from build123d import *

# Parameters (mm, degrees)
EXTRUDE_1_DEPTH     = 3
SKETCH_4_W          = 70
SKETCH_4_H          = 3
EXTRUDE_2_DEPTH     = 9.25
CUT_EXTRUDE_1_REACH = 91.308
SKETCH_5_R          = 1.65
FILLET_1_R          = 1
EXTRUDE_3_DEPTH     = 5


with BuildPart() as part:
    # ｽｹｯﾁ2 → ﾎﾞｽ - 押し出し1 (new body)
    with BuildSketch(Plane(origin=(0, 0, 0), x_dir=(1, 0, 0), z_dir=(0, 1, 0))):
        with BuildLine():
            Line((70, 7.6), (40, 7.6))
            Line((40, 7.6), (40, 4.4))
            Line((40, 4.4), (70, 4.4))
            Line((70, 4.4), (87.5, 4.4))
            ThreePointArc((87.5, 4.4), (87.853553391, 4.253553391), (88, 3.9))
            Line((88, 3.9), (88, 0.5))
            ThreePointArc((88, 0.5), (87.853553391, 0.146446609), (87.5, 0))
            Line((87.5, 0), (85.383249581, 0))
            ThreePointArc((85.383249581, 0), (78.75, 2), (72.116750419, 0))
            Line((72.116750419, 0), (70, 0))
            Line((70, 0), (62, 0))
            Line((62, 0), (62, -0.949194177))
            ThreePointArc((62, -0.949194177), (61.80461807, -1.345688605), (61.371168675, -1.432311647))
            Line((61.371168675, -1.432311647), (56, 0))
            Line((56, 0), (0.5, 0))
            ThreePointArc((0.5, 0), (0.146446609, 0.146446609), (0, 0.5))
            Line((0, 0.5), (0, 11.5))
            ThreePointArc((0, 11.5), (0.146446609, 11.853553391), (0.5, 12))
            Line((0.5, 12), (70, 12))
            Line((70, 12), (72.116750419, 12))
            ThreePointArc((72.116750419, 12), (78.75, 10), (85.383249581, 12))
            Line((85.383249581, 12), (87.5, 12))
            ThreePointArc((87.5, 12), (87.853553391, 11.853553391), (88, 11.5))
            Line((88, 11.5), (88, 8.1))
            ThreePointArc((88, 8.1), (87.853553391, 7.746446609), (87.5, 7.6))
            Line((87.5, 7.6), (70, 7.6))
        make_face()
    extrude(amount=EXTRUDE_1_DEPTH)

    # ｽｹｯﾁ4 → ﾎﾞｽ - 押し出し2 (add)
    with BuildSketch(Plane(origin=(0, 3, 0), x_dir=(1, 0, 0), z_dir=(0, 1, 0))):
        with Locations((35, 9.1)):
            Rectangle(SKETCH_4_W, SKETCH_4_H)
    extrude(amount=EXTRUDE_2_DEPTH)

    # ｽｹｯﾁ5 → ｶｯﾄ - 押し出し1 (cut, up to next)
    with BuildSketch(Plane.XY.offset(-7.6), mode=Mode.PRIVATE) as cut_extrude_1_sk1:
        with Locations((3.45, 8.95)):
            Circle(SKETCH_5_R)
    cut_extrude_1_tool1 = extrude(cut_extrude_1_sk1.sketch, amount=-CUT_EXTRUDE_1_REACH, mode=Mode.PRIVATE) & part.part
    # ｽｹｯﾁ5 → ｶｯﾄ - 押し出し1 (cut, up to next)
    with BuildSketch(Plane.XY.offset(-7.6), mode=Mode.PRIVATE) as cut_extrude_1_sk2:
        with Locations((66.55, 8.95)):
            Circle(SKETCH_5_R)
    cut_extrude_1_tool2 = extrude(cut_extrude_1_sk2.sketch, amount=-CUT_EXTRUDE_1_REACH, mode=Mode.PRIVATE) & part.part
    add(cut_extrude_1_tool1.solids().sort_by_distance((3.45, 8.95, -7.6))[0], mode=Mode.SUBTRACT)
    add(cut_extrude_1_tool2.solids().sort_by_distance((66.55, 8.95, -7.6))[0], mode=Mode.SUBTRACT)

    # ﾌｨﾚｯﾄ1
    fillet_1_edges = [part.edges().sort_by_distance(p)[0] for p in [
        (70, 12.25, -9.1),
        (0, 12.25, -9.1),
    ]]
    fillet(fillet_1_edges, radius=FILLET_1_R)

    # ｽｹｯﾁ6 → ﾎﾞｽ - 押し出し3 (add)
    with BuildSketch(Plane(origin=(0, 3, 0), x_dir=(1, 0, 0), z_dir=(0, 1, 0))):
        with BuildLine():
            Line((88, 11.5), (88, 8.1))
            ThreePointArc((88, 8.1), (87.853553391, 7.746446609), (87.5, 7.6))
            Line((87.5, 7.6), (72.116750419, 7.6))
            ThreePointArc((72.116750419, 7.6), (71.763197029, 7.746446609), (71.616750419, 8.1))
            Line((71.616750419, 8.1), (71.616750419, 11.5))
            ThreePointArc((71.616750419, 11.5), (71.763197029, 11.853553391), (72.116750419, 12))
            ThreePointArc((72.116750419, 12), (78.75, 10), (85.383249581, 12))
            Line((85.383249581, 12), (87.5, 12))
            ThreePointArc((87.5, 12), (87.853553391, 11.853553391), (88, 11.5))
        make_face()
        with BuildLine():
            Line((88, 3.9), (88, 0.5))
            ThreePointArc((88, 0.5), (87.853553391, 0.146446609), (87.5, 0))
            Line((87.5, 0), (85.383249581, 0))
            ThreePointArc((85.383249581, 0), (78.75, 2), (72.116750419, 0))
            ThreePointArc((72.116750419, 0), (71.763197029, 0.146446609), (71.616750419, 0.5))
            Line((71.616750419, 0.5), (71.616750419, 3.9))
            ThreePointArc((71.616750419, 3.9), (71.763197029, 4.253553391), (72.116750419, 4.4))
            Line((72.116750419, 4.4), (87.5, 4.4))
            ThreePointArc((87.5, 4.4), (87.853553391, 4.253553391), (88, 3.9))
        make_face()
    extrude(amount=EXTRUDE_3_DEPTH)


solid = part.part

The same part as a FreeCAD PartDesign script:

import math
import FreeCAD as App
import Part
import Sketcher

V = App.Vector


def edges_at(feature, points):
    """Names of the edges that pass closest to the given points."""
    edges = feature.Shape.Edges
    near = lambda p: min(range(len(edges)), key=lambda i: edges[i].distToShape(Part.Vertex(*p))[0])
    return sorted({f"Edge{near(p) + 1}" for p in points})

doc = App.newDocument("Part")
body = doc.addObject("PartDesign::Body", "Body")

sketch1 = doc.addObject("Sketcher::SketchObject", "Sketch")
body.addObject(sketch1)
sketch1.AttachmentSupport = (doc.XZ_Plane, [""])
sketch1.MapMode = "FlatFace"
sketch1.addGeometry(Part.LineSegment(V(40, -4.4, 0), V(40, -7.6, 0)), False)
sketch1.addGeometry(Part.LineSegment(V(40, -7.6, 0), V(87.5, -7.6, 0)), False)
sketch1.addGeometry(Part.ArcOfCircle(Part.Circle(V(87.5, -8.1, 0), V(0, 0, 1), 0.5), math.radians(0), math.radians(90)), False)
sketch1.addGeometry(Part.LineSegment(V(88, -8.1, 0), V(88, -11.5, 0)), False)
sketch1.addGeometry(Part.ArcOfCircle(Part.Circle(V(87.5, -11.5, 0), V(0, 0, 1), 0.5), math.radians(-90), math.radians(0)), False)
sketch1.addGeometry(Part.LineSegment(V(87.5, -12, 0), V(85.38, -12, 0)), False)
sketch1.addGeometry(Part.ArcOfCircle(Part.Circle(V(78.75, -22, 0), V(0, 0, 1), 12), math.radians(56), math.radians(124)), False)
sketch1.addGeometry(Part.LineSegment(V(72.12, -12, 0), V(0.5, -12, 0)), False)
sketch1.addGeometry(Part.ArcOfCircle(Part.Circle(V(0.5, -11.5, 0), V(0, 0, 1), 0.5), math.radians(180), math.radians(270)), False)
sketch1.addGeometry(Part.LineSegment(V(0, -11.5, 0), V(0, -0.5, 0)), False)
sketch1.addGeometry(Part.ArcOfCircle(Part.Circle(V(0.5, -0.5, 0), V(0, 0, 1), 0.5), math.radians(90), math.radians(180)), False)
sketch1.addGeometry(Part.LineSegment(V(0.5, 0, 0), V(56, 0, 0)), False)
sketch1.addGeometry(Part.LineSegment(V(56, 0, 0), V(61.37, 1.43, 0)), False)
sketch1.addGeometry(Part.ArcOfCircle(Part.Circle(V(61.5, 0.95, 0), V(0, 0, 1), 0.5), math.radians(0), math.radians(105)), False)
sketch1.addGeometry(Part.LineSegment(V(62, 0.95, 0), V(62, 0, 0)), False)
sketch1.addGeometry(Part.LineSegment(V(62, 0, 0), V(72.12, 0, 0)), False)
sketch1.addGeometry(Part.ArcOfCircle(Part.Circle(V(78.75, 10, 0), V(0, 0, 1), 12), math.radians(-124), math.radians(-56)), False)
sketch1.addGeometry(Part.LineSegment(V(85.38, 0, 0), V(87.5, 0, 0)), False)
sketch1.addGeometry(Part.ArcOfCircle(Part.Circle(V(87.5, -0.5, 0), V(0, 0, 1), 0.5), math.radians(0), math.radians(90)), False)
sketch1.addGeometry(Part.LineSegment(V(88, -0.5, 0), V(88, -3.9, 0)), False)
sketch1.addGeometry(Part.ArcOfCircle(Part.Circle(V(87.5, -3.9, 0), V(0, 0, 1), 0.5), math.radians(-90), math.radians(0)), False)
sketch1.addGeometry(Part.LineSegment(V(87.5, -4.4, 0), V(40, -4.4, 0)), False)
sketch1.addConstraint(Sketcher.Constraint("Coincident", 0, 2, 1, 1))
sketch1.addConstraint(Sketcher.Constraint("Tangent", 1, 2, 2, 2))
sketch1.addConstraint(Sketcher.Constraint("Tangent", 2, 1, 3, 1))
sketch1.addConstraint(Sketcher.Constraint("Tangent", 3, 2, 4, 2))
sketch1.addConstraint(Sketcher.Constraint("Tangent", 4, 1, 5, 1))
sketch1.addConstraint(Sketcher.Constraint("Coincident", 5, 2, 6, 1))
sketch1.addConstraint(Sketcher.Constraint("Coincident", 6, 2, 7, 1))
sketch1.addConstraint(Sketcher.Constraint("Tangent", 7, 2, 8, 2))
sketch1.addConstraint(Sketcher.Constraint("Tangent", 8, 1, 9, 1))
sketch1.addConstraint(Sketcher.Constraint("Tangent", 9, 2, 10, 2))
sketch1.addConstraint(Sketcher.Constraint("Tangent", 10, 1, 11, 1))
sketch1.addConstraint(Sketcher.Constraint("Coincident", 11, 2, 12, 1))
sketch1.addConstraint(Sketcher.Constraint("Tangent", 12, 2, 13, 2))
sketch1.addConstraint(Sketcher.Constraint("Tangent", 13, 1, 14, 1))
sketch1.addConstraint(Sketcher.Constraint("Coincident", 14, 2, 15, 1))
sketch1.addConstraint(Sketcher.Constraint("Coincident", 15, 2, 16, 1))
sketch1.addConstraint(Sketcher.Constraint("Coincident", 16, 2, 17, 1))
sketch1.addConstraint(Sketcher.Constraint("Tangent", 17, 2, 18, 2))
sketch1.addConstraint(Sketcher.Constraint("Tangent", 18, 1, 19, 1))
sketch1.addConstraint(Sketcher.Constraint("Tangent", 19, 2, 20, 2))
sketch1.addConstraint(Sketcher.Constraint("Tangent", 20, 1, 21, 1))
sketch1.addConstraint(Sketcher.Constraint("Coincident", 21, 2, 0, 1))
sketch1.addConstraint(Sketcher.Constraint("Vertical", 0))
sketch1.addConstraint(Sketcher.Constraint("Horizontal", 1))
sketch1.addConstraint(Sketcher.Constraint("Vertical", 3))
sketch1.addConstraint(Sketcher.Constraint("Horizontal", 5))
sketch1.addConstraint(Sketcher.Constraint("Horizontal", 7))
sketch1.addConstraint(Sketcher.Constraint("Vertical", 9))
sketch1.addConstraint(Sketcher.Constraint("Horizontal", 11))
sketch1.addConstraint(Sketcher.Constraint("Vertical", 14))
sketch1.addConstraint(Sketcher.Constraint("Horizontal", 15))
sketch1.addConstraint(Sketcher.Constraint("Horizontal", 17))
sketch1.addConstraint(Sketcher.Constraint("Vertical", 19))
sketch1.addConstraint(Sketcher.Constraint("Horizontal", 21))
sketch1.addConstraint(Sketcher.Constraint("Equal", 2, 4))
sketch1.addConstraint(Sketcher.Constraint("Equal", 4, 8))
sketch1.addConstraint(Sketcher.Constraint("Equal", 8, 10))
sketch1.addConstraint(Sketcher.Constraint("Equal", 10, 13))
sketch1.addConstraint(Sketcher.Constraint("Equal", 6, 16))
sketch1.addConstraint(Sketcher.Constraint("Equal", 13, 18))
sketch1.addConstraint(Sketcher.Constraint("Equal", 18, 20))
sketch1.addConstraint(Sketcher.Constraint("PointOnObject", 8, 1, -2))
sketch1.addConstraint(Sketcher.Constraint("PointOnObject", 10, 1, -1))
sketch1.addConstraint(Sketcher.Constraint("PointOnObject", 14, 2, -1))
sketch1.addConstraint(Sketcher.Constraint("PointOnObject", 16, 2, -1))
sketch1.addConstraint(Sketcher.Constraint("Horizontal", 4, 3, 8, 3))
sketch1.addConstraint(Sketcher.Constraint("Vertical", 6, 3, 16, 3))
sketch1.addConstraint(Sketcher.Constraint("Vertical", 4, 3, 18, 3))
sketch1.addConstraint(Sketcher.Constraint("Vertical", 6, 2, 15, 2))
sketch1.addConstraint(Sketcher.Constraint("Equal", 3, 19))
sketch1.addConstraint(Sketcher.Constraint("Radius", 6, 12.0))
sketch1.addConstraint(Sketcher.Constraint("Radius", 2, 0.5))
sketch1.addConstraint(Sketcher.Constraint("DistanceY", 9, 1, 9, 2, 11.0))
sketch1.addConstraint(Sketcher.Constraint("DistanceX", 1, 1, 1, 2, 47.5))
sketch1.addConstraint(Sketcher.Constraint("DistanceX", 11, 1, 11, 2, 55.5))
sketch1.addConstraint(Sketcher.Constraint("DistanceY", 0, 2, 0, 1, 3.2))
sketch1.addConstraint(Sketcher.Constraint("DistanceY", 6, 3, -1, 1, 22.0))
sketch1.addConstraint(Sketcher.Constraint("DistanceX", -1, 1, 0, 2, 40.0))
sketch1.addConstraint(Sketcher.Constraint("DistanceX", -1, 1, 13, 1, 62.0))
sketch1.addConstraint(Sketcher.Constraint("DistanceX", -1, 1, 6, 3, 78.75))
sketch1.addConstraint(Sketcher.Constraint("DistanceY", 14, 2, 14, 1, 0.949194))
pad1 = doc.addObject("PartDesign::Pad", "Pad")
body.addObject(pad1)
pad1.Profile = sketch1
pad1.Length = 3
pad1.Reversed = True

sketch2 = doc.addObject("Sketcher::SketchObject", "Sketch001")
body.addObject(sketch2)
sketch2.AttachmentSupport = (doc.XZ_Plane, [""])
sketch2.MapMode = "FlatFace"
sketch2.AttachmentOffset = App.Placement(V(0, 0, -3), App.Rotation())
sketch2.addGeometry(Part.LineSegment(V(0, -10.6, 0), V(0, -7.6, 0)), False)
sketch2.addGeometry(Part.LineSegment(V(0, -7.6, 0), V(70, -7.6, 0)), False)
sketch2.addGeometry(Part.LineSegment(V(70, -7.6, 0), V(70, -10.6, 0)), False)
sketch2.addGeometry(Part.LineSegment(V(70, -10.6, 0), V(0, -10.6, 0)), False)
sketch2.addConstraint(Sketcher.Constraint("Coincident", 0, 2, 1, 1))
sketch2.addConstraint(Sketcher.Constraint("Coincident", 1, 2, 2, 1))
sketch2.addConstraint(Sketcher.Constraint("Coincident", 2, 2, 3, 1))
sketch2.addConstraint(Sketcher.Constraint("Coincident", 3, 2, 0, 1))
sketch2.addConstraint(Sketcher.Constraint("Vertical", 0))
sketch2.addConstraint(Sketcher.Constraint("Horizontal", 1))
sketch2.addConstraint(Sketcher.Constraint("Vertical", 2))
sketch2.addConstraint(Sketcher.Constraint("Horizontal", 3))
sketch2.addConstraint(Sketcher.Constraint("PointOnObject", 0, 2, -2))
sketch2.addConstraint(Sketcher.Constraint("DistanceX", 1, 1, 1, 2, 70.0))
sketch2.addConstraint(Sketcher.Constraint("DistanceY", 0, 1, 0, 2, 3.0))
sketch2.addConstraint(Sketcher.Constraint("DistanceY", 0, 2, -1, 1, 7.6))
pad2 = doc.addObject("PartDesign::Pad", "Pad001")
body.addObject(pad2)
pad2.Profile = sketch2
pad2.Length = 9.25
pad2.Reversed = True

sketch3 = doc.addObject("Sketcher::SketchObject", "Sketch002")
body.addObject(sketch3)
sketch3.AttachmentSupport = (doc.XY_Plane, [""])
sketch3.MapMode = "FlatFace"
sketch3.AttachmentOffset = App.Placement(V(0, 0, -7.6), App.Rotation())
sketch3.addGeometry(Part.Circle(V(3.5, 8.9, 0), V(0, 0, 1), 1.6), False)
sketch3.addConstraint(Sketcher.Constraint("Diameter", 0, 3.3))
sketch3.addConstraint(Sketcher.Constraint("DistanceX", -1, 1, 0, 3, 3.45))
sketch3.addConstraint(Sketcher.Constraint("DistanceY", -1, 1, 0, 3, 8.95))
pocket1 = doc.addObject("PartDesign::Pocket", "Pocket")
body.addObject(pocket1)
pocket1.Profile = sketch3
pocket1.Type = "UpToFirst"

sketch4 = doc.addObject("Sketcher::SketchObject", "Sketch003")
body.addObject(sketch4)
sketch4.AttachmentSupport = (doc.XY_Plane, [""])
sketch4.MapMode = "FlatFace"
sketch4.AttachmentOffset = App.Placement(V(0, 0, -7.6), App.Rotation())
sketch4.addGeometry(Part.Circle(V(66.5, 8.9, 0), V(0, 0, 1), 1.6), False)
sketch4.addConstraint(Sketcher.Constraint("Diameter", 0, 3.3))
sketch4.addConstraint(Sketcher.Constraint("DistanceX", -1, 1, 0, 3, 66.55))
sketch4.addConstraint(Sketcher.Constraint("DistanceY", -1, 1, 0, 3, 8.95))
pocket2 = doc.addObject("PartDesign::Pocket", "Pocket001")
body.addObject(pocket2)
pocket2.Profile = sketch4
pocket2.Type = "UpToFirst"
doc.recompute()

fillet = doc.addObject("PartDesign::Fillet", "Fillet")
body.addObject(fillet)
fillet.Base = (pocket2, edges_at(pocket2, [(70, 12.25, -9.1), (0, 12.25, -9.1)]))
fillet.Radius = 1

sketch5 = doc.addObject("Sketcher::SketchObject", "Sketch004")
body.addObject(sketch5)
sketch5.AttachmentSupport = (doc.XZ_Plane, [""])
sketch5.MapMode = "FlatFace"
sketch5.AttachmentOffset = App.Placement(V(0, 0, -3), App.Rotation())
sketch5.addGeometry(Part.LineSegment(V(88, -8.1, 0), V(88, -11.5, 0)), False)
sketch5.addGeometry(Part.ArcOfCircle(Part.Circle(V(87.5, -11.5, 0), V(0, 0, 1), 0.5), math.radians(-90), math.radians(0)), False)
sketch5.addGeometry(Part.LineSegment(V(87.5, -12, 0), V(85.38, -12, 0)), False)
sketch5.addGeometry(Part.ArcOfCircle(Part.Circle(V(78.75, -22, 0), V(0, 0, 1), 12), math.radians(56), math.radians(124)), False)
sketch5.addGeometry(Part.ArcOfCircle(Part.Circle(V(72.12, -11.5, 0), V(0, 0, 1), 0.5), math.radians(180), math.radians(270)), False)
sketch5.addGeometry(Part.LineSegment(V(71.62, -11.5, 0), V(71.62, -8.1, 0)), False)
sketch5.addGeometry(Part.ArcOfCircle(Part.Circle(V(72.12, -8.1, 0), V(0, 0, 1), 0.5), math.radians(90), math.radians(180)), False)
sketch5.addGeometry(Part.LineSegment(V(72.12, -7.6, 0), V(87.5, -7.6, 0)), False)
sketch5.addGeometry(Part.ArcOfCircle(Part.Circle(V(87.5, -8.1, 0), V(0, 0, 1), 0.5), math.radians(0), math.radians(90)), False)
sketch5.addGeometry(Part.LineSegment(V(88, -0.5, 0), V(88, -3.9, 0)), False)
sketch5.addGeometry(Part.ArcOfCircle(Part.Circle(V(87.5, -3.9, 0), V(0, 0, 1), 0.5), math.radians(-90), math.radians(0)), False)
sketch5.addGeometry(Part.LineSegment(V(87.5, -4.4, 0), V(72.12, -4.4, 0)), False)
sketch5.addGeometry(Part.ArcOfCircle(Part.Circle(V(72.12, -3.9, 0), V(0, 0, 1), 0.5), math.radians(180), math.radians(270)), False)
sketch5.addGeometry(Part.LineSegment(V(71.62, -3.9, 0), V(71.62, -0.5, 0)), False)
sketch5.addGeometry(Part.ArcOfCircle(Part.Circle(V(72.12, -0.5, 0), V(0, 0, 1), 0.5), math.radians(90), math.radians(180)), False)
sketch5.addGeometry(Part.ArcOfCircle(Part.Circle(V(78.75, 10, 0), V(0, 0, 1), 12), math.radians(-124), math.radians(-56)), False)
sketch5.addGeometry(Part.LineSegment(V(85.38, 0, 0), V(87.5, 0, 0)), False)
sketch5.addGeometry(Part.ArcOfCircle(Part.Circle(V(87.5, -0.5, 0), V(0, 0, 1), 0.5), math.radians(0), math.radians(90)), False)
sketch5.addConstraint(Sketcher.Constraint("Tangent", 0, 2, 1, 2))
sketch5.addConstraint(Sketcher.Constraint("Tangent", 1, 1, 2, 1))
sketch5.addConstraint(Sketcher.Constraint("Coincident", 2, 2, 3, 1))
sketch5.addConstraint(Sketcher.Constraint("Coincident", 3, 2, 4, 2))
sketch5.addConstraint(Sketcher.Constraint("Tangent", 4, 1, 5, 1))
sketch5.addConstraint(Sketcher.Constraint("Tangent", 5, 2, 6, 2))
sketch5.addConstraint(Sketcher.Constraint("Tangent", 6, 1, 7, 1))
sketch5.addConstraint(Sketcher.Constraint("Tangent", 7, 2, 8, 2))
sketch5.addConstraint(Sketcher.Constraint("Tangent", 8, 1, 0, 1))
sketch5.addConstraint(Sketcher.Constraint("Tangent", 9, 2, 10, 2))
sketch5.addConstraint(Sketcher.Constraint("Tangent", 10, 1, 11, 1))
sketch5.addConstraint(Sketcher.Constraint("Tangent", 11, 2, 12, 2))
sketch5.addConstraint(Sketcher.Constraint("Tangent", 12, 1, 13, 1))
sketch5.addConstraint(Sketcher.Constraint("Tangent", 13, 2, 14, 2))
sketch5.addConstraint(Sketcher.Constraint("Coincident", 14, 1, 15, 1))
sketch5.addConstraint(Sketcher.Constraint("Coincident", 15, 2, 16, 1))
sketch5.addConstraint(Sketcher.Constraint("Tangent", 16, 2, 17, 2))
sketch5.addConstraint(Sketcher.Constraint("Tangent", 17, 1, 9, 1))
sketch5.addConstraint(Sketcher.Constraint("Vertical", 0))
sketch5.addConstraint(Sketcher.Constraint("Horizontal", 2))
sketch5.addConstraint(Sketcher.Constraint("Vertical", 5))
sketch5.addConstraint(Sketcher.Constraint("Horizontal", 7))
sketch5.addConstraint(Sketcher.Constraint("Vertical", 9))
sketch5.addConstraint(Sketcher.Constraint("Horizontal", 11))
sketch5.addConstraint(Sketcher.Constraint("Vertical", 13))
sketch5.addConstraint(Sketcher.Constraint("Horizontal", 16))
sketch5.addConstraint(Sketcher.Constraint("Equal", 1, 4))
sketch5.addConstraint(Sketcher.Constraint("Equal", 4, 6))
sketch5.addConstraint(Sketcher.Constraint("Equal", 6, 8))
sketch5.addConstraint(Sketcher.Constraint("Equal", 8, 10))
sketch5.addConstraint(Sketcher.Constraint("Equal", 10, 12))
sketch5.addConstraint(Sketcher.Constraint("Equal", 12, 14))
sketch5.addConstraint(Sketcher.Constraint("Equal", 3, 15))
sketch5.addConstraint(Sketcher.Constraint("Equal", 14, 17))
sketch5.addConstraint(Sketcher.Constraint("PointOnObject", 14, 1, -1))
sketch5.addConstraint(Sketcher.Constraint("PointOnObject", 15, 2, -1))
sketch5.addConstraint(Sketcher.Constraint("Horizontal", 1, 3, 4, 3))
sketch5.addConstraint(Sketcher.Constraint("Vertical", 8, 3, 10, 3))
sketch5.addConstraint(Sketcher.Constraint("Vertical", 6, 3, 12, 3))
sketch5.addConstraint(Sketcher.Constraint("Vertical", 3, 3, 15, 3))
sketch5.addConstraint(Sketcher.Constraint("Vertical", 14, 3, 3, 2))
sketch5.addConstraint(Sketcher.Constraint("Vertical", 11, 2, 14, 1))
sketch5.addConstraint(Sketcher.Constraint("Equal", 5, 9))
sketch5.addConstraint(Sketcher.Constraint("Radius", 3, 12.0))
sketch5.addConstraint(Sketcher.Constraint("Radius", 1, 0.5))
sketch5.addConstraint(Sketcher.Constraint("DistanceY", 0, 2, 0, 1, 3.4))
sketch5.addConstraint(Sketcher.Constraint("DistanceY", 3, 3, -1, 1, 22.0))
sketch5.addConstraint(Sketcher.Constraint("DistanceY", -1, 1, 15, 3, 10.0))
sketch5.addConstraint(Sketcher.Constraint("DistanceX", -1, 1, 0, 2, 88.0))
sketch5.addConstraint(Sketcher.Constraint("DistanceX", -1, 1, 3, 3, 78.75))
pad3 = doc.addObject("PartDesign::Pad", "Pad002")
body.addObject(pad3)
pad3.Profile = sketch5
pad3.Length = 5
pad3.Reversed = True

doc.recompute()
